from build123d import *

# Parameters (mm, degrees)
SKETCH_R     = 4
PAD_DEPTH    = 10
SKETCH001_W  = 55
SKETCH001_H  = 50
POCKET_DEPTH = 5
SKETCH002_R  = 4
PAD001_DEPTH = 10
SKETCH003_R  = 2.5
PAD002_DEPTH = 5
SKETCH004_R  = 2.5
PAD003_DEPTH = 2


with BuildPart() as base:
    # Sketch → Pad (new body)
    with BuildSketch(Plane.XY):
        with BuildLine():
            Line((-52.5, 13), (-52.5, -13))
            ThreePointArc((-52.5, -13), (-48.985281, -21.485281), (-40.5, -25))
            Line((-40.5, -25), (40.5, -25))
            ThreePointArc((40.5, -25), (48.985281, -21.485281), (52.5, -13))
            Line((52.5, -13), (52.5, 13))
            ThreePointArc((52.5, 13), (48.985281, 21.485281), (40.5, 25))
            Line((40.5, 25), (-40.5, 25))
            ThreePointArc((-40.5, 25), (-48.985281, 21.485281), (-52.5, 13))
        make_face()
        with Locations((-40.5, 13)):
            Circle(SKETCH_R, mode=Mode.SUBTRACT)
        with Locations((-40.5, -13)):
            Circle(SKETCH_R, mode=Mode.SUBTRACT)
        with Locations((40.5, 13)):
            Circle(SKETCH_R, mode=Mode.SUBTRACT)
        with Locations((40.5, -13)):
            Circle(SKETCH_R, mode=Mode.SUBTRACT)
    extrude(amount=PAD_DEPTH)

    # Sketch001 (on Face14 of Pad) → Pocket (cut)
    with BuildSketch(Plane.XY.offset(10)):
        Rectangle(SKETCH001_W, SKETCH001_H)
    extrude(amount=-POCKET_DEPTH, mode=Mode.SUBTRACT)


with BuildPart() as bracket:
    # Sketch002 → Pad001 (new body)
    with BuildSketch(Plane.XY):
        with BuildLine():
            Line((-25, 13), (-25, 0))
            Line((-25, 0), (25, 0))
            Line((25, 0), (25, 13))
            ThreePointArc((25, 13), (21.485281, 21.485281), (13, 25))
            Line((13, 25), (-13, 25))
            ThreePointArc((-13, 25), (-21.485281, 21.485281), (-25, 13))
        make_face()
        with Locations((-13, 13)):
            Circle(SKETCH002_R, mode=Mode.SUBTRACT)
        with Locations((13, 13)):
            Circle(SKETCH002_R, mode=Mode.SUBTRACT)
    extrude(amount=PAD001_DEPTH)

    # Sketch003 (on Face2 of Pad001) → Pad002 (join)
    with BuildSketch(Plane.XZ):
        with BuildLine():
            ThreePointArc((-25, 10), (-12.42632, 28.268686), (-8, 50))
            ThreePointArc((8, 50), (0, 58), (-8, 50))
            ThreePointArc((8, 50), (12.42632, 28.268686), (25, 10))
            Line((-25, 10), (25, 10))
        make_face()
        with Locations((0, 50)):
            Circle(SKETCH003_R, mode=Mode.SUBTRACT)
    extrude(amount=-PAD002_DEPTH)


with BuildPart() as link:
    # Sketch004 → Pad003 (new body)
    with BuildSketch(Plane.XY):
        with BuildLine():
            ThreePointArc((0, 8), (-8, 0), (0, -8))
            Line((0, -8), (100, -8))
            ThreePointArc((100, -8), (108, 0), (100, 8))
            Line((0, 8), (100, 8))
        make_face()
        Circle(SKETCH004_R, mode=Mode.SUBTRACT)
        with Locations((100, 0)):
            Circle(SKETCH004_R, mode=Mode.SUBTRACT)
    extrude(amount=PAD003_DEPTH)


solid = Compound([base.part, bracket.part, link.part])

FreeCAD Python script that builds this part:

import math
import FreeCAD as App
import Part
import Sketcher

V = App.Vector

doc = App.newDocument("Part")
body = doc.addObject("PartDesign::Body", "Body")

# Sketch on XY plane
sketch1 = body.newObject("Sketcher::SketchObject", "Sketch")
sketch1.AttachmentSupport = (doc.getObject("XY_Plane"), [""])
sketch1.MapMode = "FlatFace"
sketch1.addGeometry(Part.LineSegment(V(-52.5, 13, 0), V(-52.5, -13, 0)), False)
sketch1.addGeometry(Part.ArcOfCircle(Part.Circle(V(-40.5, -13, 0), V(0, 0, 1), 12), math.radians(-180), math.radians(-90)), False)
sketch1.addGeometry(Part.LineSegment(V(-40.5, -25, 0), V(40.5, -25, 0)), False)
sketch1.addGeometry(Part.ArcOfCircle(Part.Circle(V(40.5, -13, 0), V(0, 0, 1), 12), math.radians(-90), math.radians(0)), False)
sketch1.addGeometry(Part.LineSegment(V(52.5, -13, 0), V(52.5, 13, 0)), False)
sketch1.addGeometry(Part.ArcOfCircle(Part.Circle(V(40.5, 13, 0), V(0, 0, 1), 12), math.radians(0), math.radians(90)), False)
sketch1.addGeometry(Part.LineSegment(V(40.5, 25, 0), V(-40.5, 25, 0)), False)
sketch1.addGeometry(Part.ArcOfCircle(Part.Circle(V(-40.5, 13, 0), V(0, 0, 1), 12), math.radians(90), math.radians(180)), False)
sketch1.addGeometry(Part.Circle(V(-40.5, -13, 0), V(0, 0, 1), 4), False)
sketch1.addGeometry(Part.Circle(V(40.5, -13, 0), V(0, 0, 1), 4), False)
sketch1.addGeometry(Part.Circle(V(-40.5, 13, 0), V(0, 0, 1), 4), False)
sketch1.addGeometry(Part.Circle(V(40.5, 13, 0), V(0, 0, 1), 4), False)
sketch1.addConstraint(Sketcher.Constraint("Tangent", 0, 2, 1, 1))
sketch1.addConstraint(Sketcher.Constraint("Tangent", 1, 2, 2, 1))
sketch1.addConstraint(Sketcher.Constraint("Tangent", 2, 2, 3, 1))
sketch1.addConstraint(Sketcher.Constraint("Tangent", 3, 2, 4, 1))
sketch1.addConstraint(Sketcher.Constraint("Tangent", 4, 2, 5, 1))
sketch1.addConstraint(Sketcher.Constraint("Tangent", 5, 2, 6, 1))
sketch1.addConstraint(Sketcher.Constraint("Tangent", 6, 2, 7, 1))
sketch1.addConstraint(Sketcher.Constraint("Tangent", 7, 2, 0, 1))
sketch1.addConstraint(Sketcher.Constraint("Vertical", 0))
sketch1.addConstraint(Sketcher.Constraint("Horizontal", 2))
sketch1.addConstraint(Sketcher.Constraint("Vertical", 4))
sketch1.addConstraint(Sketcher.Constraint("Horizontal", 6))
sketch1.addConstraint(Sketcher.Constraint("Coincident", 8, 3, 1, 3))
sketch1.addConstraint(Sketcher.Constraint("Coincident", 9, 3, 3, 3))
sketch1.addConstraint(Sketcher.Constraint("Coincident", 10, 3, 7, 3))
sketch1.addConstraint(Sketcher.Constraint("Coincident", 11, 3, 5, 3))
sketch1.addConstraint(Sketcher.Constraint("Equal", 1, 3))
sketch1.addConstraint(Sketcher.Constraint("Equal", 3, 5))
sketch1.addConstraint(Sketcher.Constraint("Equal", 5, 7))
sketch1.addConstraint(Sketcher.Constraint("Equal", 8, 9))
sketch1.addConstraint(Sketcher.Constraint("Equal", 9, 10))
sketch1.addConstraint(Sketcher.Constraint("Equal", 10, 11))
sketch1.addConstraint(Sketcher.Constraint("Symmetric", 1, 3, 5, 3, -1, 1))
sketch1.addConstraint(Sketcher.Constraint("Diameter", 8, 8.0))
sketch1.addConstraint(Sketcher.Constraint("Radius", 1, 12.000001))
sketch1.addConstraint(Sketcher.Constraint("DistanceX", 2, 1, 2, 2, 81.0))
sketch1.addConstraint(Sketcher.Constraint("DistanceY", 0, 2, 0, 1, 26.0))
pad1 = body.newObject("PartDesign::Pad", "Pad")
pad1.Profile = sketch1
pad1.Length = 10

# Sketch on XY plane
sketch2 = body.newObject("Sketcher::SketchObject", "Sketch001")
sketch2.AttachmentSupport = (doc.getObject("XY_Plane"), [""])
sketch2.MapMode = "FlatFace"
sketch2.AttachmentOffset = App.Placement(V(0, 0, 10), App.Rotation())
sketch2.addGeometry(Part.LineSegment(V(-28, 25, 0), V(-28, -25, 0)), False)
sketch2.addGeometry(Part.LineSegment(V(-28, -25, 0), V(28, -25, 0)), False)
sketch2.addGeometry(Part.LineSegment(V(28, -25, 0), V(28, 25, 0)), False)
sketch2.addGeometry(Part.LineSegment(V(28, 25, 0), V(-28, 25, 0)), False)
sketch2.addConstraint(Sketcher.Constraint("Coincident", 0, 2, 1, 1))
sketch2.addConstraint(Sketcher.Constraint("Coincident", 1, 2, 2, 1))
sketch2.addConstraint(Sketcher.Constraint("Coincident", 2, 2, 3, 1))
sketch2.addConstraint(Sketcher.Constraint("Coincident", 3, 2, 0, 1))
sketch2.addConstraint(Sketcher.Constraint("Vertical", 0))
sketch2.addConstraint(Sketcher.Constraint("Horizontal", 1))
sketch2.addConstraint(Sketcher.Constraint("Vertical", 2))
sketch2.addConstraint(Sketcher.Constraint("Horizontal", 3))
sketch2.addConstraint(Sketcher.Constraint("Symmetric", 0, 2, 2, 2, -1, 1))
sketch2.addConstraint(Sketcher.Constraint("DistanceX", 1, 1, 1, 2, 55.0))
sketch2.addConstraint(Sketcher.Constraint("DistanceY", 0, 2, 0, 1, 50.0))
pocket1 = body.newObject("PartDesign::Pocket", "Pocket")
pocket1.Profile = sketch2
pocket1.Length = 5
body2 = doc.addObject("PartDesign::Body", "Body001")

# Sketch on XY plane
sketch3 = body2.newObject("Sketcher::SketchObject", "Sketch002")
sketch3.AttachmentSupport = (doc.getObject("XY_Plane001"), [""])
sketch3.MapMode = "FlatFace"
sketch3.addGeometry(Part.LineSegment(V(-25, 13, 0), V(-25, 0, 0)), False)
sketch3.addGeometry(Part.LineSegment(V(-25, 0, 0), V(25, 0, 0)), False)
sketch3.addGeometry(Part.LineSegment(V(25, 0, 0), V(25, 13, 0)), False)
sketch3.addGeometry(Part.ArcOfCircle(Part.Circle(V(13, 13, 0), V(0, 0, 1), 12), math.radians(0), math.radians(90)), False)
sketch3.addGeometry(Part.LineSegment(V(13, 25, 0), V(-13, 25, 0)), False)
sketch3.addGeometry(Part.ArcOfCircle(Part.Circle(V(-13, 13, 0), V(0, 0, 1), 12), math.radians(90), math.radians(180)), False)
sketch3.addGeometry(Part.Circle(V(-13, 13, 0), V(0, 0, 1), 4), False)
sketch3.addGeometry(Part.Circle(V(13, 13, 0), V(0, 0, 1), 4), False)
sketch3.addConstraint(Sketcher.Constraint("Coincident", 0, 2, 1, 1))
sketch3.addConstraint(Sketcher.Constraint("Coincident", 1, 2, 2, 1))
sketch3.addConstraint(Sketcher.Constraint("Tangent", 2, 2, 3, 1))
sketch3.addConstraint(Sketcher.Constraint("Tangent", 3, 2, 4, 1))
sketch3.addConstraint(Sketcher.Constraint("Tangent", 4, 2, 5, 1))
sketch3.addConstraint(Sketcher.Constraint("Tangent", 5, 2, 0, 1))
sketch3.addConstraint(Sketcher.Constraint("Vertical", 0))
sketch3.addConstraint(Sketcher.Constraint("Horizontal", 1))
sketch3.addConstraint(Sketcher.Constraint("Vertical", 2))
sketch3.addConstraint(Sketcher.Constraint("Horizontal", 4))
sketch3.addConstraint(Sketcher.Constraint("Coincident", 6, 3, 5, 3))
sketch3.addConstraint(Sketcher.Constraint("Coincident", 7, 3, 3, 3))
sketch3.addConstraint(Sketcher.Constraint("Equal", 3, 5))
sketch3.addConstraint(Sketcher.Constraint("Equal", 6, 7))
sketch3.addConstraint(Sketcher.Constraint("Symmetric", 0, 2, 1, 2, -1, 1))
sketch3.addConstraint(Sketcher.Constraint("Diameter", 6, 8.0))
sketch3.addConstraint(Sketcher.Constraint("Radius", 3, 12.000001))
sketch3.addConstraint(Sketcher.Constraint("DistanceX", 1, 1, 1, 2, 50.0))
sketch3.addConstraint(Sketcher.Constraint("DistanceY", 0, 2, 0, 1, 13.0))
pad2 = body2.newObject("PartDesign::Pad", "Pad001")
pad2.Profile = sketch3
pad2.Length = 10

# Sketch on XZ plane
sketch4 = body2.newObject("Sketcher::SketchObject", "Sketch003")
sketch4.AttachmentSupport = (doc.getObject("XZ_Plane001"), [""])
sketch4.MapMode = "FlatFace"
sketch4.addGeometry(Part.ArcOfCircle(Part.Circle(V(-63.6, 50, 0), V(0, 0, 1), 55.6), math.radians(-46), math.radians(0)), False)
sketch4.addGeometry(Part.LineSegment(V(-25, 10, 0), V(25, 10, 0)), False)
sketch4.addGeometry(Part.ArcOfCircle(Part.Circle(V(63.6, 50, 0), V(0, 0, 1), 55.6), math.radians(180), math.radians(226)), False)
sketch4.addGeometry(Part.ArcOfCircle(Part.Circle(V(0, 50, 0), V(0, 0, 1), 8), math.radians(0), math.radians(180)), False)
sketch4.addGeometry(Part.Circle(V(0, 50, 0), V(0, 0, 1), 2.5), False)
sketch4.addConstraint(Sketcher.Constraint("Coincident", 0, 1, 1, 1))
sketch4.addConstraint(Sketcher.Constraint("Coincident", 1, 2, 2, 2))
sketch4.addConstraint(Sketcher.Constraint("Tangent", 2, 1, 3, 1))
sketch4.addConstraint(Sketcher.Constraint("Tangent", 3, 2, 0, 2))
sketch4.addConstraint(Sketcher.Constraint("Horizontal", 1))
sketch4.addConstraint(Sketcher.Constraint("Coincident", 4, 3, 3, 3))
sketch4.addConstraint(Sketcher.Constraint("Equal", 0, 2))
sketch4.addConstraint(Sketcher.Constraint("Symmetric", 0, 3, 2, 3, -2))
sketch4.addConstraint(Sketcher.Constraint("Horizontal", 4, 3, 2, 1))
sketch4.addConstraint(Sketcher.Constraint("Diameter", 4, 5.0))
sketch4.addConstraint(Sketcher.Constraint("Radius", 3, 8.0))
sketch4.addConstraint(Sketcher.Constraint("DistanceX", 1, 1, 1, 2, 50.0))
sketch4.addConstraint(Sketcher.Constraint("DistanceY", -1, 1, 3, 3, 50.0))
sketch4.addConstraint(Sketcher.Constraint("DistanceY", -1, 1, 0, 1, 10.0))
pad3 = body2.newObject("PartDesign::Pad", "Pad002")
pad3.Profile = sketch4
pad3.Length = 5
pad3.Reversed = True
body3 = doc.addObject("PartDesign::Body", "Body002")

# Sketch on XY plane
sketch5 = body3.newObject("Sketcher::SketchObject", "Sketch004")
sketch5.AttachmentSupport = (doc.getObject("XY_Plane002"), [""])
sketch5.MapMode = "FlatFace"
sketch5.addGeometry(Part.ArcOfCircle(Part.Circle(V(0, 0, 0), V(0, 0, 1), 8), math.radians(90), math.radians(270)), False)
sketch5.addGeometry(Part.LineSegment(V(0, -8, 0), V(100, -8, 0)), False)
sketch5.addGeometry(Part.ArcOfCircle(Part.Circle(V(100, 0, 0), V(0, 0, 1), 8), math.radians(-90), math.radians(90)), False)
sketch5.addGeometry(Part.LineSegment(V(100, 8, 0), V(0, 8, 0)), False)
sketch5.addGeometry(Part.Circle(V(0, 0, 0), V(0, 0, 1), 2.5), False)
sketch5.addGeometry(Part.Circle(V(100, 0, 0), V(0, 0, 1), 2.5), False)
sketch5.addConstraint(Sketcher.Constraint("Tangent", 0, 2, 1, 1))
sketch5.addConstraint(Sketcher.Constraint("Tangent", 1, 2, 2, 1))
sketch5.addConstraint(Sketcher.Constraint("Tangent", 2, 2, 3, 1))
sketch5.addConstraint(Sketcher.Constraint("Tangent", 3, 2, 0, 1))
sketch5.addConstraint(Sketcher.Constraint("Horizontal", 1))
sketch5.addConstraint(Sketcher.Constraint("Horizontal", 3))
sketch5.addConstraint(Sketcher.Constraint("Coincident", 0, 3, -1, 1))
sketch5.addConstraint(Sketcher.Constraint("Coincident", 4, 3, -1, 1))
sketch5.addConstraint(Sketcher.Constraint("Coincident", 5, 3, 2, 3))
sketch5.addConstraint(Sketcher.Constraint("Equal", 4, 5))
sketch5.addConstraint(Sketcher.Constraint("Diameter", 4, 5.0))
sketch5.addConstraint(Sketcher.Constraint("Radius", 0, 8.0))
sketch5.addConstraint(Sketcher.Constraint("DistanceX", 1, 1, 1, 2, 100.0))
pad4 = body3.newObject("PartDesign::Pad", "Pad003")
pad4.Profile = sketch5
pad4.Length = 2

doc.recompute()
